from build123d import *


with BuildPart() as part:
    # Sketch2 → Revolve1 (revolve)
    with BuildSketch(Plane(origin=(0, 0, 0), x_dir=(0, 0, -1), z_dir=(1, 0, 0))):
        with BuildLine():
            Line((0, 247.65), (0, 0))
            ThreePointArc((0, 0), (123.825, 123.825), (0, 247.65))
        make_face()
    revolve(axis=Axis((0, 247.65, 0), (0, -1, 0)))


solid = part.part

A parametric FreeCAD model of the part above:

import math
import FreeCAD as App
import Part
import Sketcher
Q = App.Units.Quantity

doc = App.newDocument("Part")
body = doc.addObject("PartDesign::Body", "Body")

sketch1 = body.newObject("Sketcher::SketchObject", "Sketch")
sketch1.AttachmentSupport = (doc.getObject("YZ_Plane"), [""])
sketch1.MapMode = "FlatFace"
sketch1.addGeometry([
    Part.LineSegment(App.Vector(247.65, 0, 0), App.Vector(0, 0, 0)),
    Part.ArcOfCircle(Part.Circle(App.Vector(123.825, 0, 0), App.Vector(0, 0, 1), 123.825), math.radians(180), math.radians(360)),
], False)
sketch1.addConstraint([
    Sketcher.Constraint("Coincident", 0, 1, 1, 2),
    Sketcher.Constraint("Coincident", 1, 1, 0, 2),
    Sketcher.Constraint("Horizontal", 0),
    Sketcher.Constraint("Coincident", 1, 1, -1, 1),
    Sketcher.Constraint("PointOnObject", 1, 3, -1),
    Sketcher.Constraint("Radius", 1, Q("4.875 in")),
])
revolution = body.newObject("PartDesign::Revolution", "Revolution")
revolution.Profile = sketch1
revolution.ReferenceAxis = (sketch1, ["H_Axis"])
revolution.Angle = 360

doc.recompute()
